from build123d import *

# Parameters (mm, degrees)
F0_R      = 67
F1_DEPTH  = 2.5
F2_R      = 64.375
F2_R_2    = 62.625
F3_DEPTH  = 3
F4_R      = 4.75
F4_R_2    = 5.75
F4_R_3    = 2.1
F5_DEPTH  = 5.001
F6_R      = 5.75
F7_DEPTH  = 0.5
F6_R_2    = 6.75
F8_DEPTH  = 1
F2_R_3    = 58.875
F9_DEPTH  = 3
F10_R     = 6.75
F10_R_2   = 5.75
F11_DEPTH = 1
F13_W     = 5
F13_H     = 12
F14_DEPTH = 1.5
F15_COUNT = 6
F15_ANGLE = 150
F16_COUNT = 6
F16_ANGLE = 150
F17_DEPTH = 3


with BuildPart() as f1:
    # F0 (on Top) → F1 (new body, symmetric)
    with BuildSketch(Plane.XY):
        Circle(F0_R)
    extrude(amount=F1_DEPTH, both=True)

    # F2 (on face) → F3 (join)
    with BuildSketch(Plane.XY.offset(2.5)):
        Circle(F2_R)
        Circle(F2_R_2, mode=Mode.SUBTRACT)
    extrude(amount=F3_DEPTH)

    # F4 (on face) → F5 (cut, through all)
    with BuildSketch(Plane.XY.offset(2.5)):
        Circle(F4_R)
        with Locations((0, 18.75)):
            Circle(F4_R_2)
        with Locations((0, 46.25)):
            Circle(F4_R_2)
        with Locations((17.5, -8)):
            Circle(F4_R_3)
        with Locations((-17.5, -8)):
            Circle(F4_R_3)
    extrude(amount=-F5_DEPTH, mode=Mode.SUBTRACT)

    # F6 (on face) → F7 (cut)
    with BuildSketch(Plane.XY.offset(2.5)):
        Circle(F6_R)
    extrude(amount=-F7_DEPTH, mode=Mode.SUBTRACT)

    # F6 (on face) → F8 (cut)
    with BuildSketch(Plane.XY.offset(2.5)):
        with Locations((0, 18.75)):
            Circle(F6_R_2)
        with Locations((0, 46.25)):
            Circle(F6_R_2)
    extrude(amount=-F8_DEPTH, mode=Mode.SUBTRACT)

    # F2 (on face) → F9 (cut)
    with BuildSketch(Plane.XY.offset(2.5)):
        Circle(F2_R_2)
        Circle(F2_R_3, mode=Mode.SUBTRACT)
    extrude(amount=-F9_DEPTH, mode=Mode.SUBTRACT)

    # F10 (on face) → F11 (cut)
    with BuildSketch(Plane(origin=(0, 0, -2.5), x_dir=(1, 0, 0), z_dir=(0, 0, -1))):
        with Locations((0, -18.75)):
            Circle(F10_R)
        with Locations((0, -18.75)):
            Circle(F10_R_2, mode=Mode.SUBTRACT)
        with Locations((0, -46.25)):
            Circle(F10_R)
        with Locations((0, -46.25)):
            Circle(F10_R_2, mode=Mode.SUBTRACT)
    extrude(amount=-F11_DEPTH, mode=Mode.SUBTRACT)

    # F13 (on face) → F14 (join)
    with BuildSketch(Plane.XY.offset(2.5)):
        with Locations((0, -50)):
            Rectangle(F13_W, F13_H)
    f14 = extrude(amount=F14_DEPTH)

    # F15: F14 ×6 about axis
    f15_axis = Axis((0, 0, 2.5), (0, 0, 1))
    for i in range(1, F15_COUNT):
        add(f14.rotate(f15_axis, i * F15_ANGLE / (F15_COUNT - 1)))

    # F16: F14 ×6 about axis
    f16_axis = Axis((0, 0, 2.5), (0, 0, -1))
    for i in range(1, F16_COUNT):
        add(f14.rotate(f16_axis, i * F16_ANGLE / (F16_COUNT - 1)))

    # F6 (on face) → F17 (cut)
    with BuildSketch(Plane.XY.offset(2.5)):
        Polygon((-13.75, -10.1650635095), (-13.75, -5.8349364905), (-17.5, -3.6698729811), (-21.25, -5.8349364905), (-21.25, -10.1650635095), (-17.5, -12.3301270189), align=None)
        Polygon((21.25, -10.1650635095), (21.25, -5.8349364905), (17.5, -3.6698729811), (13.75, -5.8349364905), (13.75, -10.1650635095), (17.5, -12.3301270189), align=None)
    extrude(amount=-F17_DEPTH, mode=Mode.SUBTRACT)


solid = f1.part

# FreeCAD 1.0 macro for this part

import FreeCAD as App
import Part
import Sketcher
from FreeCAD import Vector
Q = App.Units.Quantity

doc = App.newDocument("Part")
params = doc.addObject("Spreadsheet::Sheet", "Params")
for row, (alias, value) in enumerate([
    ("sketch1_diameter", "134 mm"),
    ("pad1_length", "5 mm"),
    ("sketch2_diameter", "128.75 mm"),
    ("sketch2_diameter2", "125.25 mm"),
    ("pad2_length", "3 mm"),
    ("sketch3_diameter", "9.5 mm"),
    ("sketch3_diameter2", "11.5 mm"),
    ("sketch3_diameter3", "4.2 mm"),
    ("sketch4_diameter", "11.5 mm"),
    ("pocket2_length", "0.5 mm"),
    ("sketch5_diameter", "13.5 mm"),
    ("pocket3_length", "1 mm"),
    ("sketch6_diameter", "125.25 mm"),
    ("sketch6_diameter2", "117.75 mm"),
    ("pocket4_length", "3 mm"),
    ("sketch7_diameter", "13.5 mm"),
    ("sketch7_diameter2", "11.5 mm"),
    ("pocket5_length", "1 mm"),
    ("sketch8_width", "5 mm"),
    ("sketch8_height", "12 mm"),
    ("pad3_length", "1.5 mm"),
    ("pocket6_length", "3 mm"),
], start=1):
    params.set(f"A{row}", alias)
    params.set(f"B{row}", "=" + value)
    params.setAlias(f"B{row}", alias)

body = doc.addObject("PartDesign::Body", "Body")

sketch1 = body.newObject("Sketcher::SketchObject", "Sketch")
sketch1.AttachmentSupport = (doc.getObject("XY_Plane"), [""])
sketch1.MapMode = "FlatFace"
sketch1.addGeometry(Part.Circle(Vector(0, 0, 0), Vector(0, 0, 1), 67), False)
sketch1.addConstraint([
    Sketcher.Constraint("Coincident", 0, 3, -1, 1),
    Sketcher.Constraint("Diameter", 0, 134.0),
])
sketch1.setExpression("Constraints[1]", "Params.sketch1_diameter")
pad1 = body.newObject("PartDesign::Pad", "Pad")
pad1.Profile = sketch1
pad1.setExpression("Length", "Params.pad1_length")
pad1.Midplane = True

sketch2 = body.newObject("Sketcher::SketchObject", "Sketch001")
sketch2.AttachmentSupport = (doc.getObject("XY_Plane"), [""])
sketch2.MapMode = "FlatFace"
sketch2.AttachmentOffset = App.Placement(Vector(0, 0, 2.5), App.Rotation())
sketch2.addGeometry([
    Part.Circle(Vector(0, 0, 0), Vector(0, 0, 1), 64),
    Part.Circle(Vector(0, 0, 0), Vector(0, 0, 1), 63),
], False)
sketch2.addConstraint([
    Sketcher.Constraint("Coincident", 0, 3, -1, 1),
    Sketcher.Constraint("Coincident", 1, 3, -1, 1),
    Sketcher.Constraint("Diameter", 0, 128.75),
    Sketcher.Constraint("Diameter", 1, 125.25),
])
sketch2.setExpression("Constraints[2]", "Params.sketch2_diameter")
sketch2.setExpression("Constraints[3]", "Params.sketch2_diameter2")
pad2 = body.newObject("PartDesign::Pad", "Pad001")
pad2.Profile = sketch2
pad2.setExpression("Length", "Params.pad2_length")

sketch3 = body.newObject("Sketcher::SketchObject", "Sketch002")
sketch3.AttachmentSupport = (doc.getObject("XY_Plane"), [""])
sketch3.MapMode = "FlatFace"
sketch3.AttachmentOffset = App.Placement(Vector(0, 0, 2.5), App.Rotation())
sketch3.addGeometry([
    Part.Circle(Vector(0, 0, 0), Vector(0, 0, 1), 4.8),
    Part.Circle(Vector(0, 18.8, 0), Vector(0, 0, 1), 5.8),
    Part.Circle(Vector(0, 46.2, 0), Vector(0, 0, 1), 5.8),
    Part.Circle(Vector(17.5, -8, 0), Vector(0, 0, 1), 2.1),
    Part.Circle(Vector(-17.5, -8, 0), Vector(0, 0, 1), 2.1),
], False)
sketch3.addConstraint([
    Sketcher.Constraint("Coincident", 0, 3, -1, 1),
    Sketcher.Constraint("Equal", 1, 2),
    Sketcher.Constraint("Equal", 3, 4),
    Sketcher.Constraint("Symmetric", 3, 3, 4, 3, -2),
    Sketcher.Constraint("PointOnObject", 1, 3, -2),
    Sketcher.Constraint("PointOnObject", 2, 3, -2),
    Sketcher.Constraint("Diameter", 0, 9.5),
    Sketcher.Constraint("Diameter", 1, 11.5),
    Sketcher.Constraint("Diameter", 3, 4.2),
    Sketcher.Constraint("DistanceY", 3, 3, -1, 1, 8.0),
    Sketcher.Constraint("DistanceX", 4, 3, 3, 3, 35.0),
    Sketcher.Constraint("DistanceY", 1, 3, 2, 3, 27.5),
    Sketcher.Constraint("DistanceY", -1, 1, 1, 3, 18.75),
])
sketch3.setExpression("Constraints[6]", "Params.sketch3_diameter")
sketch3.setExpression("Constraints[7]", "Params.sketch3_diameter2")
sketch3.setExpression("Constraints[8]", "Params.sketch3_diameter3")
pocket1 = body.newObject("PartDesign::Pocket", "Pocket")
pocket1.Profile = sketch3
pocket1.Type = "ThroughAll"

sketch4 = body.newObject("Sketcher::SketchObject", "Sketch003")
sketch4.AttachmentSupport = (doc.getObject("XY_Plane"), [""])
sketch4.MapMode = "FlatFace"
sketch4.AttachmentOffset = App.Placement(Vector(0, 0, 2.5), App.Rotation())
sketch4.addGeometry(Part.Circle(Vector(0, 0, 0), Vector(0, 0, 1), 6), False)
sketch4.addConstraint([
    Sketcher.Constraint("Coincident", 0, 3, -1, 1),
    Sketcher.Constraint("Diameter", 0, 11.5),
])
sketch4.setExpression("Constraints[1]", "Params.sketch4_diameter")
pocket2 = body.newObject("PartDesign::Pocket", "Pocket001")
pocket2.Profile = sketch4
pocket2.setExpression("Length", "Params.pocket2_length")

sketch5 = body.newObject("Sketcher::SketchObject", "Sketch004")
sketch5.AttachmentSupport = (doc.getObject("XY_Plane"), [""])
sketch5.MapMode = "FlatFace"
sketch5.AttachmentOffset = App.Placement(Vector(0, 0, 2.5), App.Rotation())
sketch5.addGeometry([
    Part.Circle(Vector(0, 19, 0), Vector(0, 0, 1), 7),
    Part.Circle(Vector(0, 46, 0), Vector(0, 0, 1), 7),
], False)
sketch5.addConstraint([
    Sketcher.Constraint("Equal", 0, 1),
    Sketcher.Constraint("PointOnObject", 0, 3, -2),
    Sketcher.Constraint("PointOnObject", 1, 3, -2),
    Sketcher.Constraint("Diameter", 0, 13.5),
    Sketcher.Constraint("DistanceY", 0, 3, 1, 3, 27.5),
    Sketcher.Constraint("DistanceY", -1, 1, 0, 3, 18.75),
])
sketch5.setExpression("Constraints[3]", "Params.sketch5_diameter")
pocket3 = body.newObject("PartDesign::Pocket", "Pocket002")
pocket3.Profile = sketch5
pocket3.setExpression("Length", "Params.pocket3_length")

sketch6 = body.newObject("Sketcher::SketchObject", "Sketch005")
sketch6.AttachmentSupport = (doc.getObject("XY_Plane"), [""])
sketch6.MapMode = "FlatFace"
sketch6.AttachmentOffset = App.Placement(Vector(0, 0, 2.5), App.Rotation())
sketch6.addGeometry([
    Part.Circle(Vector(0, 0, 0), Vector(0, 0, 1), 63),
    Part.Circle(Vector(0, 0, 0), Vector(0, 0, 1), 59),
], False)
sketch6.addConstraint([
    Sketcher.Constraint("Coincident", 0, 3, -1, 1),
    Sketcher.Constraint("Coincident", 1, 3, -1, 1),
    Sketcher.Constraint("Diameter", 0, 125.25),
    Sketcher.Constraint("Diameter", 1, 117.75),
])
sketch6.setExpression("Constraints[2]", "Params.sketch6_diameter")
sketch6.setExpression("Constraints[3]", "Params.sketch6_diameter2")
pocket4 = body.newObject("PartDesign::Pocket", "Pocket003")
pocket4.Profile = sketch6
pocket4.setExpression("Length", "Params.pocket4_length")

sketch7 = body.newObject("Sketcher::SketchObject", "Sketch006")
sketch7.AttachmentSupport = (doc.getObject("XY_Plane"), [""])
sketch7.MapMode = "FlatFace"
sketch7.AttachmentOffset = App.Placement(Vector(0, 0, -2.5), App.Rotation())
sketch7.addGeometry([
    Part.Circle(Vector(0, 19, 0), Vector(0, 0, 1), 7),
    Part.Circle(Vector(0, 19, 0), Vector(0, 0, 1), 6),
    Part.Circle(Vector(0, 46, 0), Vector(0, 0, 1), 7),
    Part.Circle(Vector(0, 46, 0), Vector(0, 0, 1), 6),
], False)
sketch7.addConstraint([
    Sketcher.Constraint("Coincident", 1, 3, 0, 3),
    Sketcher.Constraint("Coincident", 3, 3, 2, 3),
    Sketcher.Constraint("Equal", 0, 2),
    Sketcher.Constraint("Equal", 1, 3),
    Sketcher.Constraint("PointOnObject", 0, 3, -2),
    Sketcher.Constraint("PointOnObject", 2, 3, -2),
    Sketcher.Constraint("Diameter", 0, 13.5),
    Sketcher.Constraint("Diameter", 1, 11.5),
    Sketcher.Constraint("DistanceY", 0, 3, 2, 3, 27.5),
    Sketcher.Constraint("DistanceY", -1, 1, 0, 3, 18.75),
])
sketch7.setExpression("Constraints[6]", "Params.sketch7_diameter")
sketch7.setExpression("Constraints[7]", "Params.sketch7_diameter2")
pocket5 = body.newObject("PartDesign::Pocket", "Pocket004")
pocket5.Profile = sketch7
pocket5.setExpression("Length", "Params.pocket5_length")
pocket5.Reversed = True

sketch8 = body.newObject("Sketcher::SketchObject", "Sketch007")
sketch8.AttachmentSupport = (doc.getObject("XY_Plane"), [""])
sketch8.MapMode = "FlatFace"
sketch8.AttachmentOffset = App.Placement(Vector(0, 0, 2.5), App.Rotation())
sketch8.addGeometry([
    Part.LineSegment(Vector(-2, -44, 0), Vector(-2, -56, 0)),
    Part.LineSegment(Vector(-2, -56, 0), Vector(2, -56, 0)),
    Part.LineSegment(Vector(2, -56, 0), Vector(2, -44, 0)),
    Part.LineSegment(Vector(2, -44, 0), Vector(-2, -44, 0)),
], False)
sketch8.addConstraint([
    Sketcher.Constraint("Coincident", 0, 2, 1, 1),
    Sketcher.Constraint("Coincident", 1, 2, 2, 1),
    Sketcher.Constraint("Coincident", 2, 2, 3, 1),
    Sketcher.Constraint("Coincident", 3, 2, 0, 1),
    Sketcher.Constraint("Vertical", 0),
    Sketcher.Constraint("Horizontal", 1),
    Sketcher.Constraint("Vertical", 2),
    Sketcher.Constraint("Horizontal", 3),
    Sketcher.Constraint("DistanceX", 1, 1, 1, 2, 5.0),
    Sketcher.Constraint("DistanceY", 0, 2, 0, 1, 12.0),
    Sketcher.Constraint("DistanceY", 0, 2, -1, 1, 56.0),
    Sketcher.Constraint("DistanceX", 0, 2, -1, 1, 2.5),
])
sketch8.setExpression("Constraints[8]", "Params.sketch8_width")
sketch8.setExpression("Constraints[9]", "Params.sketch8_height")
pad3 = body.newObject("PartDesign::Pad", "Pad002")
pad3.Profile = sketch8
pad3.setExpression("Length", "Params.pad3_length")
doc.recompute()

polarpattern = body.newObject("PartDesign::PolarPattern", "PolarPattern")
polarpattern.Originals = [pad3]
polarpattern.Axis = (doc.getObject("Z_Axis"), [""])
polarpattern.Angle = 150
polarpattern.Occurrences = 6
body.Tip = polarpattern
doc.recompute()

polarpattern2 = body.newObject("PartDesign::PolarPattern", "PolarPattern001")
polarpattern2.Originals = [pad3]
polarpattern2.Axis = (doc.getObject("Z_Axis"), [""])
polarpattern2.Angle = 150
polarpattern2.Occurrences = 6
polarpattern2.Reversed = True
body.Tip = polarpattern2

sketch9 = body.newObject("Sketcher::SketchObject", "Sketch008")
sketch9.AttachmentSupport = (doc.getObject("XY_Plane"), [""])
sketch9.MapMode = "FlatFace"
sketch9.AttachmentOffset = App.Placement(Vector(0, 0, 2.5), App.Rotation())
sketch9.addGeometry([
    Part.LineSegment(Vector(-13.8, -10.2, 0), Vector(-13.8, -5.8, 0)),
    Part.LineSegment(Vector(-13.8, -5.8, 0), Vector(-17.5, -3.7, 0)),
    Part.LineSegment(Vector(-17.5, -3.7, 0), Vector(-21.2, -5.8, 0)),
    Part.LineSegment(Vector(-21.2, -5.8, 0), Vector(-21.2, -10.2, 0)),
    Part.LineSegment(Vector(-21.2, -10.2, 0), Vector(-17.5, -12.3, 0)),
    Part.LineSegment(Vector(-17.5, -12.3, 0), Vector(-13.8, -10.2, 0)),
    Part.LineSegment(Vector(21.2, -10.2, 0), Vector(21.2, -5.8, 0)),
    Part.LineSegment(Vector(21.2, -5.8, 0), Vector(17.5, -3.7, 0)),
    Part.LineSegment(Vector(17.5, -3.7, 0), Vector(13.8, -5.8, 0)),
    Part.LineSegment(Vector(13.8, -5.8, 0), Vector(13.8, -10.2, 0)),
    Part.LineSegment(Vector(13.8, -10.2, 0), Vector(17.5, -12.3, 0)),
    Part.LineSegment(Vector(17.5, -12.3, 0), Vector(21.2, -10.2, 0)),
], False)
sketch9.addConstraint([
    Sketcher.Constraint("Coincident", 0, 2, 1, 1),
    Sketcher.Constraint("Coincident", 1, 2, 2, 1),
    Sketcher.Constraint("Coincident", 2, 2, 3, 1),
    Sketcher.Constraint("Coincident", 3, 2, 4, 1),
    Sketcher.Constraint("Coincident", 4, 2, 5, 1),
    Sketcher.Constraint("Coincident", 5, 2, 0, 1),
    Sketcher.Constraint("Coincident", 6, 2, 7, 1),
    Sketcher.Constraint("Coincident", 7, 2, 8, 1),
    Sketcher.Constraint("Coincident", 8, 2, 9, 1),
    Sketcher.Constraint("Coincident", 9, 2, 10, 1),
    Sketcher.Constraint("Coincident", 10, 2, 11, 1),
    Sketcher.Constraint("Coincident", 11, 2, 6, 1),
    Sketcher.Constraint("Vertical", 0),
    Sketcher.Constraint("Vertical", 3),
    Sketcher.Constraint("Vertical", 6),
    Sketcher.Constraint("Vertical", 9),
    Sketcher.Constraint("Symmetric", 2, 2, 6, 2, -2),
    Sketcher.Constraint("Symmetric", 1, 2, 7, 2, -2),
    Sketcher.Constraint("Symmetric", 0, 2, 8, 2, -2),
    Sketcher.Constraint("Symmetric", 4, 2, 10, 2, -2),
    Sketcher.Constraint("Parallel", 1, 4),
    Sketcher.Constraint("Parallel", 2, 5),
    Sketcher.Constraint("Parallel", 4, 7),
    Sketcher.Constraint("Parallel", 7, 10),
    Sketcher.Constraint("Parallel", 8, 11),
    Sketcher.Constraint("Horizontal", 0, 2, 2, 2),
    Sketcher.Constraint("Horizontal", 3, 2, 5, 2),
    Sketcher.Constraint("Angle", 1, Q("150 deg")),
    Sketcher.Constraint("DistanceX", 0, 2, 6, 2, 35.0),
    Sketcher.Constraint("DistanceX", 2, 2, 0, 2, 7.5),
    Sketcher.Constraint("DistanceY", 0, 1, 0, 2, 4.330127),
    Sketcher.Constraint("DistanceY", 0, 2, -1, 1, 5.834936),
])
pocket6 = body.newObject("PartDesign::Pocket", "Pocket005")
pocket6.Profile = sketch9
pocket6.setExpression("Length", "Params.pocket6_length")

doc.recompute()
